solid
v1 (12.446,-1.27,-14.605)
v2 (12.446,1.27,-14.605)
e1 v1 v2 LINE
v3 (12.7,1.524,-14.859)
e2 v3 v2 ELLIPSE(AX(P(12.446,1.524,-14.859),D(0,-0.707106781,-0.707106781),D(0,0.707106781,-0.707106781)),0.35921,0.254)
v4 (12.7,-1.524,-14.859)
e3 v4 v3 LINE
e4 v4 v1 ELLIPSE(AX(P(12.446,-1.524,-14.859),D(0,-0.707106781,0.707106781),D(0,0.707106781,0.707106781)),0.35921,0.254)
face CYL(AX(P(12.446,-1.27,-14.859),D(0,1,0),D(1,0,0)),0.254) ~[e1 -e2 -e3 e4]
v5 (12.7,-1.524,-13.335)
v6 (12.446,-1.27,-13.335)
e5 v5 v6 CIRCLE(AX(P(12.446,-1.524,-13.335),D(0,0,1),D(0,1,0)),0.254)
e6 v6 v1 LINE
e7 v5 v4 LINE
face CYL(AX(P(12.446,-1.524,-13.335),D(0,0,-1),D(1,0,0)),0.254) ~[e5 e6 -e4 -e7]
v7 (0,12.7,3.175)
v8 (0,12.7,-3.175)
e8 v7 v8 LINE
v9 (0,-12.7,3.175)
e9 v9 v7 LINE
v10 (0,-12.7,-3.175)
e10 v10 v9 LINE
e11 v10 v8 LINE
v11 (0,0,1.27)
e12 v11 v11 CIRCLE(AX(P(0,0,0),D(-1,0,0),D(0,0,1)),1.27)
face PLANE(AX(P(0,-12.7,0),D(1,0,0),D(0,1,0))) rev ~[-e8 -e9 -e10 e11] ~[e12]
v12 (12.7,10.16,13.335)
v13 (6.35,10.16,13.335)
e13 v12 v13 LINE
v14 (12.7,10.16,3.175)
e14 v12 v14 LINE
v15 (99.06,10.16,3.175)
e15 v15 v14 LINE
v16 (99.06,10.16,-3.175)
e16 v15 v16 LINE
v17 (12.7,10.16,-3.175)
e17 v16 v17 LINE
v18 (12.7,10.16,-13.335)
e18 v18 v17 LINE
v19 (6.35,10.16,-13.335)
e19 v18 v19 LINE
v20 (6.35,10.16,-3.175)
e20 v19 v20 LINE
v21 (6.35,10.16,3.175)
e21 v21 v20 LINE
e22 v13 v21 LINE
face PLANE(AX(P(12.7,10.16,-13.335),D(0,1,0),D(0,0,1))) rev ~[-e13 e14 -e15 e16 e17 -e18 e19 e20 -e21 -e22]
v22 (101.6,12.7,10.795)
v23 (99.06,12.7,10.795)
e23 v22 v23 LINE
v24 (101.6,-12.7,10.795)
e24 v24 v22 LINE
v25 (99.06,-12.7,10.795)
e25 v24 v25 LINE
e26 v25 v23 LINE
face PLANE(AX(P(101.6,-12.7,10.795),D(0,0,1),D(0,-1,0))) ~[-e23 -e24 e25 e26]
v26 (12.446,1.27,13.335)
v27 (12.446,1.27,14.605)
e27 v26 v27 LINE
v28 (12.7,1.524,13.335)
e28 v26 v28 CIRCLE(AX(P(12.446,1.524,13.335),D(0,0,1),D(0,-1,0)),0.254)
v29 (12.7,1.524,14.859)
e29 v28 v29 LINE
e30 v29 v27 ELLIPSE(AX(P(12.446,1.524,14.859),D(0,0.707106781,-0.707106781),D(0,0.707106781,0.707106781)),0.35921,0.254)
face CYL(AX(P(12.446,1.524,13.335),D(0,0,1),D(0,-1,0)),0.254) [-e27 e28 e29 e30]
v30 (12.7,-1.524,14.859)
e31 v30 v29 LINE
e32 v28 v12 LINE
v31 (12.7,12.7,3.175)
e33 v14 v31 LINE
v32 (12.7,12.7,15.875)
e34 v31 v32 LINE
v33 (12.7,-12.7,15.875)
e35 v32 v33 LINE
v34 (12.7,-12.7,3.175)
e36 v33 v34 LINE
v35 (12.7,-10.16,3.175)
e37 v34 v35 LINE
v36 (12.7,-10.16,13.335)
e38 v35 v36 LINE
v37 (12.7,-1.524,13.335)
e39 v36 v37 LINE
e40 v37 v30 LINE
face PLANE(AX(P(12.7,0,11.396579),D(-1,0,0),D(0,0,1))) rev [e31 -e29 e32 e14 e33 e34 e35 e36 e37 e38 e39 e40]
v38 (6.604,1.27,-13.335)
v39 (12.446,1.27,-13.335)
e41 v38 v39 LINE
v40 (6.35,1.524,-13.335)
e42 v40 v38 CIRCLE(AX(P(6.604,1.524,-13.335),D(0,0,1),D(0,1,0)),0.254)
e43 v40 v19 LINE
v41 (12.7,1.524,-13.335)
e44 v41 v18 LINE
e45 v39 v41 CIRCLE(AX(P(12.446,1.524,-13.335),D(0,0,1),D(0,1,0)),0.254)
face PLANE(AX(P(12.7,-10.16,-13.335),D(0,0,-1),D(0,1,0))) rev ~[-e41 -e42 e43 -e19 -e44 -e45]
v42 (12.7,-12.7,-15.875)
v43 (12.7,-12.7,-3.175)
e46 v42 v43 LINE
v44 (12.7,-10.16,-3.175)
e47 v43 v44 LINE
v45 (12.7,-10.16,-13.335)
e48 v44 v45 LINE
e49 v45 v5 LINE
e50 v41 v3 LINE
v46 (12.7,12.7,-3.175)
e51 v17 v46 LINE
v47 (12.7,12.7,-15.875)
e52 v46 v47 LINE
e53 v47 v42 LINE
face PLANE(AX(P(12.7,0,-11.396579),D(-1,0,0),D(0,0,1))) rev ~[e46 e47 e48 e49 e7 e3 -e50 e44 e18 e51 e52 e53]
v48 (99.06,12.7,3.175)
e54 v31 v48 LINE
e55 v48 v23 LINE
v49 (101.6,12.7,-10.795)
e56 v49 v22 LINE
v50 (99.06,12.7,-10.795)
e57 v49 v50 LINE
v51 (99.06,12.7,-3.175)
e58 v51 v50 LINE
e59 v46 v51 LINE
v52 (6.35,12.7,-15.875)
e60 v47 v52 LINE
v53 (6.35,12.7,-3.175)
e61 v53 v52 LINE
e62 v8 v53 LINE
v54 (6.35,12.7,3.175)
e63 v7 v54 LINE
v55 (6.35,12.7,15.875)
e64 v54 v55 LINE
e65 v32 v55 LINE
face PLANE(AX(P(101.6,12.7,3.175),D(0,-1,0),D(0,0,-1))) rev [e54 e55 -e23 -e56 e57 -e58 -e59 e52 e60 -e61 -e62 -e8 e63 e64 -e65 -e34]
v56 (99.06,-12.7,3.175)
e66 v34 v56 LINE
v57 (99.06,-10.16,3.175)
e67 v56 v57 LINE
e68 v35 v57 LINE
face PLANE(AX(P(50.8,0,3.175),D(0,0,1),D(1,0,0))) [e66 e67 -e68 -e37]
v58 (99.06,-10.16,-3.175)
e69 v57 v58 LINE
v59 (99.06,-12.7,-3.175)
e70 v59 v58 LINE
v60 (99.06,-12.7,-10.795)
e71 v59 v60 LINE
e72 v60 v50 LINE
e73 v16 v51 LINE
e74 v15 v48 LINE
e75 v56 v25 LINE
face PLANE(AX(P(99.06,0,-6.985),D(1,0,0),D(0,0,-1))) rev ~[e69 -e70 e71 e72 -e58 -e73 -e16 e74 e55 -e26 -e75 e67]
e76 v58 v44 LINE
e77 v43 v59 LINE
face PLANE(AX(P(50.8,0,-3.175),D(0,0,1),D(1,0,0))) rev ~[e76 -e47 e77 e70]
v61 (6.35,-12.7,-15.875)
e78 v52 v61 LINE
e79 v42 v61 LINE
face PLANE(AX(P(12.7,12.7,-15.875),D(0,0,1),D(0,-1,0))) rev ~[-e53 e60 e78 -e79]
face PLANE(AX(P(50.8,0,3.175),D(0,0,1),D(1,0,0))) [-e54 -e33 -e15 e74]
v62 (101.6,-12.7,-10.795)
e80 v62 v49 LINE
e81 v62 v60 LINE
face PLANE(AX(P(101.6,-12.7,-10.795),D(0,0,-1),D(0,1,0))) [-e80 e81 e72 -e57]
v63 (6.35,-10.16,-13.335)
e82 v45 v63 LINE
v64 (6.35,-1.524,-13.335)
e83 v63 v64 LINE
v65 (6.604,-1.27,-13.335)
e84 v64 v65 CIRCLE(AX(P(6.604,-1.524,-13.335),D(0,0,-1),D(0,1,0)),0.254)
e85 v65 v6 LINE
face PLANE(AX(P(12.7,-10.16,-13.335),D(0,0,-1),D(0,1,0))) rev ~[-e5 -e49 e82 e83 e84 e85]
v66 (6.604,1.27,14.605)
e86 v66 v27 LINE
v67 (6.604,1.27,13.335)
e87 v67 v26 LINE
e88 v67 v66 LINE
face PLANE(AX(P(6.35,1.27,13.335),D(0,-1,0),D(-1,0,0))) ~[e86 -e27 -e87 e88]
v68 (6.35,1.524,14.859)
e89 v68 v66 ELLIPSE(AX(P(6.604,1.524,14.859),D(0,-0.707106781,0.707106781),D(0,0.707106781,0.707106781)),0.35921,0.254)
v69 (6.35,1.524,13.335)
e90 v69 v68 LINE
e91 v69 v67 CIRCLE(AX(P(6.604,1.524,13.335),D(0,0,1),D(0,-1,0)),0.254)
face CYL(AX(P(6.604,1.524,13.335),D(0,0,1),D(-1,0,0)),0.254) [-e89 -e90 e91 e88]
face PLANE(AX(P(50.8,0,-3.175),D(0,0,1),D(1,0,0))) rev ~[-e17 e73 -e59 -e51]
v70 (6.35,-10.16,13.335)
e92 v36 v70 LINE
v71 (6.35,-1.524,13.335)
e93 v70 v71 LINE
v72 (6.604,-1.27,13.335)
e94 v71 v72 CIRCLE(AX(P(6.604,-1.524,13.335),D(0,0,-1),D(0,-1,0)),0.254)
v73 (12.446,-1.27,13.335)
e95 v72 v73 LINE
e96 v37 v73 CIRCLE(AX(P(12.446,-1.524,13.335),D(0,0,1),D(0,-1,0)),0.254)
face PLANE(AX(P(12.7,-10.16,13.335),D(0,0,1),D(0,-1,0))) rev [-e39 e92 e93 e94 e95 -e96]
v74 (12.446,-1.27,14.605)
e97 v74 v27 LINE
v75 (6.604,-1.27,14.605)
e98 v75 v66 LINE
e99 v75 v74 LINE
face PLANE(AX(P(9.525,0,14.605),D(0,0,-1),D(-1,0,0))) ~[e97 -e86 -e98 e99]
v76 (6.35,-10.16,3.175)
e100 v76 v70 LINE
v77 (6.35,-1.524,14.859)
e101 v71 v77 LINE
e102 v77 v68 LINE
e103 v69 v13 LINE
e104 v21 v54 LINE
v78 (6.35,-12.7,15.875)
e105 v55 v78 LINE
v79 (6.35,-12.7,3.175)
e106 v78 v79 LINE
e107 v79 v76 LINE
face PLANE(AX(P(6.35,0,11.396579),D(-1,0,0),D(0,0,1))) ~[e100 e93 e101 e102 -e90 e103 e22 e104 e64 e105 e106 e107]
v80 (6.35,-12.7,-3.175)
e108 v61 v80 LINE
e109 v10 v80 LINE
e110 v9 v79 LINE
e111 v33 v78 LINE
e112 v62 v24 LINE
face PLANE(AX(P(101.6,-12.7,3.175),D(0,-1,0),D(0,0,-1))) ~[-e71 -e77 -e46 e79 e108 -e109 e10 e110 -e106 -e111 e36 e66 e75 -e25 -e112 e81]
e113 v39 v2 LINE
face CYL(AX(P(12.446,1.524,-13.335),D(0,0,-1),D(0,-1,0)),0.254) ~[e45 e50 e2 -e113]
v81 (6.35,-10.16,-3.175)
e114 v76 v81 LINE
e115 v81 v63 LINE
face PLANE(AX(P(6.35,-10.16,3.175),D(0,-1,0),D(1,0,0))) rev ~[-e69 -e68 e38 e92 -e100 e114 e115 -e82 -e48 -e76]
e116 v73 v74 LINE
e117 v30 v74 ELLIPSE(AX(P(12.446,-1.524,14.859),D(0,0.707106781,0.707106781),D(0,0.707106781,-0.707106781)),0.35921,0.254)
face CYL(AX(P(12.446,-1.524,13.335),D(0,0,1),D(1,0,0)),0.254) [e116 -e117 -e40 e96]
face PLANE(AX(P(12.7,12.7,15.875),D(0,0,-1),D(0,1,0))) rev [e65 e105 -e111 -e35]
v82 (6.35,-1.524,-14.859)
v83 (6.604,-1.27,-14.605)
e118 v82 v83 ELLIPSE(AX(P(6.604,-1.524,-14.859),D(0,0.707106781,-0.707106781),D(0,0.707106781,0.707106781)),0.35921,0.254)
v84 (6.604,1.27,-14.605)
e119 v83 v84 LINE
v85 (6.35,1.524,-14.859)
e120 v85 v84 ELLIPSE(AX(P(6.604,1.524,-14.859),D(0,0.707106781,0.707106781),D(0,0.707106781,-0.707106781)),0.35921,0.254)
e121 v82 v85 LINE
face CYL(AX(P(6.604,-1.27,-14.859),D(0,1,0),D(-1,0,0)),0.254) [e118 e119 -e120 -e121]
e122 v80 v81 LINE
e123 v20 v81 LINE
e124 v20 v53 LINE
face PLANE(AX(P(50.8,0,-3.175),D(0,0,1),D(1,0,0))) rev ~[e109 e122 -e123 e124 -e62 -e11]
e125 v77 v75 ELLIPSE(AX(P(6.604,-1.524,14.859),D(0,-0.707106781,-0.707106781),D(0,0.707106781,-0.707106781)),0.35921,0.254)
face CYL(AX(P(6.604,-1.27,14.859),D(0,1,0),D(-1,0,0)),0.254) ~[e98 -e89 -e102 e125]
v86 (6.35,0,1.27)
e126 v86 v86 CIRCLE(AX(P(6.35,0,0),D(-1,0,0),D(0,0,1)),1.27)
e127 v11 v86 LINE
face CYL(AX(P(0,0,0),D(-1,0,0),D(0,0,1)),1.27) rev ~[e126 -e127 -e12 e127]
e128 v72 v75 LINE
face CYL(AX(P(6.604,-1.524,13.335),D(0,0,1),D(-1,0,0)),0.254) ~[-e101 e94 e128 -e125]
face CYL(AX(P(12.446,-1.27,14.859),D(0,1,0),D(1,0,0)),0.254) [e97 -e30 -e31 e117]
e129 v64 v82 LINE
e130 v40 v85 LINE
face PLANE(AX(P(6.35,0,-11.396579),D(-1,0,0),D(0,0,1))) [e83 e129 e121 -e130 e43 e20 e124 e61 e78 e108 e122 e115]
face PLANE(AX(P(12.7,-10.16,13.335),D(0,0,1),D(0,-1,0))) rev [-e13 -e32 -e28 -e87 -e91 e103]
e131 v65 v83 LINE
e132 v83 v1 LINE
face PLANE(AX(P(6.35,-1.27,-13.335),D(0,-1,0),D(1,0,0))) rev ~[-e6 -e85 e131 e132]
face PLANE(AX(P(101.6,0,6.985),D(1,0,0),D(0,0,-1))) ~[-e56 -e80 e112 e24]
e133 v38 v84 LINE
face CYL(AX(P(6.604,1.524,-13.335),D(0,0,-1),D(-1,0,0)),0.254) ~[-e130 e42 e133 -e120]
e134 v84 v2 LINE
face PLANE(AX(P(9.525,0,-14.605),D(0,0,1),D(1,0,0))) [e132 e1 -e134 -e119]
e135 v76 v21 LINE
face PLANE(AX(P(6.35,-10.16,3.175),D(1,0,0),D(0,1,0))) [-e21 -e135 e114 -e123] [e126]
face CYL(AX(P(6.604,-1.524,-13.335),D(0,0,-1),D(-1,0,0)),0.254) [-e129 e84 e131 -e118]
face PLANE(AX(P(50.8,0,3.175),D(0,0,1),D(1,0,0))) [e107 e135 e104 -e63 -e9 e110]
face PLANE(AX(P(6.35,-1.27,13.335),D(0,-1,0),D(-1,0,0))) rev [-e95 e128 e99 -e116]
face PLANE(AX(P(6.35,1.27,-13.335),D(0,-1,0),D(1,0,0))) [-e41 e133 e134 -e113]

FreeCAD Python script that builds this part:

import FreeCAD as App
import Part
import Sketcher
Q = App.Units.Quantity


def edges_at(feature, points):
    """Names of the edges that pass closest to the given points."""
    edges = feature.Shape.Edges
    near = lambda p: min(range(len(edges)), key=lambda i: edges[i].distToShape(Part.Vertex(*p))[0])
    return sorted({f"Edge{near(p) + 1}" for p in points})


def add_polygon(sketch, points):
    """Adds a closed chain of lines whose ends are joined by coincident constraints."""
    first, n = sketch.GeometryCount, len(points)
    for a, b in zip(points, points[1:] + points[:1]):
        sketch.addGeometry(Part.LineSegment(App.Vector(*a, 0), App.Vector(*b, 0)), False)
    for i in range(n):
        sketch.addConstraint(Sketcher.Constraint("Coincident", first + i, 2, first + (i + 1) % n, 1))

doc = App.newDocument("Part")
body = doc.addObject("PartDesign::Body", "Body")

# Sketch on XY plane
sketch1 = body.newObject("Sketcher::SketchObject", "Sketch")
sketch1.AttachmentSupport = (doc.getObject("XY_Plane"), [""])
sketch1.MapMode = "FlatFace"
add_polygon(sketch1, [(0, 12.7), (0, -12.7), (101.6, -12.7), (101.6, 12.7)])  # lines 0-3
sketch1.addConstraint([
    Sketcher.Constraint("Vertical", 0),
    Sketcher.Constraint("Horizontal", 1),
    Sketcher.Constraint("Vertical", 2),
    Sketcher.Constraint("Horizontal", 3),
    Sketcher.Constraint("Symmetric", 0, 2, 3, 2, -1, 1),
    Sketcher.Constraint("DistanceX", 1, 1, 1, 2, Q("4 in")),
    Sketcher.Constraint("DistanceY", 0, 2, 0, 1, Q("1 in")),
])
pad1 = body.newObject("PartDesign::Pad", "Pad")
pad1.Profile = sketch1
pad1.Length = Q("0.25 in")
pad1.Midplane = True

# Sketch on YZ plane
sketch2 = body.newObject("Sketcher::SketchObject", "Sketch001")
sketch2.AttachmentSupport = (doc.getObject("YZ_Plane"), [""])
sketch2.MapMode = "FlatFace"
sketch2.AttachmentOffset = App.Placement(App.Vector(0, 0, 0.5 * 25.4), App.Rotation())
add_polygon(sketch2, [(12.7, -3.175), (12.7, -15.875), (-12.7, -15.875), (-12.7, -3.175), (-10.16, -3.175), (-10.16, -13.335), (10.16, -13.335), (10.16, -3.175)])  # lines 0-7
sketch2.addConstraint([
    Sketcher.Constraint("Vertical", 0),
    Sketcher.Constraint("Horizontal", 1),
    Sketcher.Constraint("Vertical", 2),
    Sketcher.Constraint("Horizontal", 3),
    Sketcher.Constraint("Vertical", 4),
    Sketcher.Constraint("Horizontal", 5),
    Sketcher.Constraint("Vertical", 6),
    Sketcher.Constraint("Horizontal", 7),
    Sketcher.Constraint("Symmetric", 3, 2, 6, 2, -2),
    Sketcher.Constraint("Equal", 3, 7),
    Sketcher.Constraint("DistanceX", 1, 2, 1, 1, Q("1 in")),
    Sketcher.Constraint("DistanceX", 3, 1, 3, 2, Q("0.1 in")),
    Sketcher.Constraint("DistanceY", 0, 2, 0, 1, Q("0.5 in")),
    Sketcher.Constraint("DistanceY", 4, 2, 4, 1, Q("0.4 in")),
    Sketcher.Constraint("DistanceY", 0, 2, -1, 1, Q("0.625 in")),
])
pad2 = body.newObject("PartDesign::Pad", "Pad001")
pad2.Profile = sketch2
pad2.Length = Q("0.25 in")
pad2.Reversed = True

# Sketch on XY plane
sketch3 = body.newObject("Sketcher::SketchObject", "Sketch002")
sketch3.AttachmentSupport = (doc.getObject("XY_Plane"), [""])
sketch3.MapMode = "FlatFace"
sketch3.AttachmentOffset = App.Placement(App.Vector(0, 0, -0.525 * 25.4), App.Rotation())
add_polygon(sketch3, [(6.35, 1.27), (6.35, -1.27), (12.7, -1.27), (12.7, 1.27)])  # lines 0-3
sketch3.addConstraint([
    Sketcher.Constraint("Vertical", 0),
    Sketcher.Constraint("Horizontal", 1),
    Sketcher.Constraint("Vertical", 2),
    Sketcher.Constraint("Horizontal", 3),
    Sketcher.Constraint("DistanceY", 0, 2, 0, 1, Q("0.1 in")),
    Sketcher.Constraint("DistanceX", 1, 1, 1, 2, Q("0.25 in")),
    Sketcher.Constraint("DistanceX", -1, 1, 1, 2, Q("0.5 in")),
    Sketcher.Constraint("DistanceY", 0, 2, -1, 1, Q("0.05 in")),
])
pocket1 = body.newObject("PartDesign::Pocket", "Pocket")
pocket1.Profile = sketch3
pocket1.Length = Q("0.05 in")
doc.recompute()

fillet = body.newObject("PartDesign::Fillet", "Fillet")
fillet.Base = (pocket1, edges_at(pocket1, [(6.35, 0, -14.605), (6.35, -1.27, -13.97), (6.35, 1.27, -13.97)]))
fillet.Radius = Q("0.01 in")
doc.recompute()

fillet2 = body.newObject("PartDesign::Fillet", "Fillet001")
fillet2.Base = (fillet, edges_at(fillet, [(12.7, 0, -14.605), (12.7, 1.27, -13.97), (12.7, -1.27, -13.97)]))
fillet2.Radius = Q("0.01 in")
doc.recompute()

mirrored = body.newObject("PartDesign::Mirrored", "Mirrored")
mirrored.Originals = [pad2, pocket1]
mirrored.MirrorPlane = (doc.getObject("XY_Plane"), [""])
body.Tip = mirrored
doc.recompute()

fillet3 = body.newObject("PartDesign::Fillet", "Fillet002")
fillet3.Base = (mirrored, edges_at(mirrored, [(6.35, 0, 14.605), (6.35, -1.27, 13.97), (6.35, 1.27, 13.97)]))
fillet3.Radius = Q("0.01 in")
doc.recompute()

fillet4 = body.newObject("PartDesign::Fillet", "Fillet003")
fillet4.Base = (fillet3, edges_at(fillet3, [(12.7, 0, 14.605), (12.7, 1.27, 13.97), (12.7, -1.27, 13.97)]))
fillet4.Radius = Q("0.01 in")

# Sketch on YZ plane
sketch4 = body.newObject("Sketcher::SketchObject", "Sketch003")
sketch4.AttachmentSupport = (doc.getObject("YZ_Plane"), [""])
sketch4.MapMode = "FlatFace"
sketch4.AttachmentOffset = App.Placement(App.Vector(0, 0, 4 * 25.4), App.Rotation())
add_polygon(sketch4, [(12.7, -3.175), (-12.7, -3.175), (-12.7, -10.795), (12.7, -10.795)])  # lines 0-3
sketch4.addConstraint([
    Sketcher.Constraint("Horizontal", 0),
    Sketcher.Constraint("Vertical", 1),
    Sketcher.Constraint("Horizontal", 2),
    Sketcher.Constraint("Vertical", 3),
    Sketcher.Constraint("DistanceX", 0, 2, 0, 1, Q("1 in")),
    Sketcher.Constraint("DistanceY", 1, 2, 1, 1, Q("0.3 in")),
    Sketcher.Constraint("DistanceX", 0, 2, -1, 1, Q("0.5 in")),
    Sketcher.Constraint("DistanceY", 0, 2, -1, 1, Q("0.125 in")),
])
pad3 = body.newObject("PartDesign::Pad", "Pad002")
pad3.Profile = sketch4
pad3.Length = Q("0.1 in")
pad3.Reversed = True
doc.recompute()

mirrored2 = body.newObject("PartDesign::Mirrored", "Mirrored001")
mirrored2.Originals = [pad3]
mirrored2.MirrorPlane = (doc.getObject("XY_Plane"), [""])
body.Tip = mirrored2

# Sketch on XY plane
sketch5 = body.newObject("Sketcher::SketchObject", "Sketch004")
sketch5.AttachmentSupport = (doc.getObject("XY_Plane"), [""])
sketch5.MapMode = "FlatFace"
sketch5.AttachmentOffset = App.Placement(App.Vector(0, 0, 0.125 * 25.4), App.Rotation())
add_polygon(sketch5, [(6.35, 10.16), (6.35, -10.16), (99.06, -10.16), (99.06, 10.16)])  # lines 0-3
sketch5.addConstraint([
    Sketcher.Constraint("Vertical", 0),
    Sketcher.Constraint("Horizontal", 1),
    Sketcher.Constraint("Vertical", 2),
    Sketcher.Constraint("Horizontal", 3),
    Sketcher.Constraint("DistanceY", 0, 2, 0, 1, Q("0.8 in")),
    Sketcher.Constraint("DistanceX", 1, 1, 1, 2, Q("3.65 in")),
    Sketcher.Constraint("DistanceY", 0, 2, -1, 1, Q("0.4 in")),
    Sketcher.Constraint("DistanceX", -1, 1, 1, 2, Q("3.9 in")),
])
pocket2 = body.newObject("PartDesign::Pocket", "Pocket001")
pocket2.Profile = sketch5
pocket2.Type = "UpToFirst"

# Sketch on YZ plane
sketch6 = body.newObject("Sketcher::SketchObject", "Sketch005")
sketch6.AttachmentSupport = (doc.getObject("YZ_Plane"), [""])
sketch6.MapMode = "FlatFace"
sketch6.addGeometry(Part.Circle(App.Vector(0, 0, 0), App.Vector(0, 0, 1), 1.27), False)
sketch6.addConstraint([
    Sketcher.Constraint("Coincident", 0, 3, -1, 1),
    Sketcher.Constraint("Diameter", 0, Q("0.1 in")),
])
pocket3 = body.newObject("PartDesign::Pocket", "Pocket002")
pocket3.Profile = sketch6
pocket3.Type = "UpToFirst"
pocket3.Reversed = True

doc.recompute()
